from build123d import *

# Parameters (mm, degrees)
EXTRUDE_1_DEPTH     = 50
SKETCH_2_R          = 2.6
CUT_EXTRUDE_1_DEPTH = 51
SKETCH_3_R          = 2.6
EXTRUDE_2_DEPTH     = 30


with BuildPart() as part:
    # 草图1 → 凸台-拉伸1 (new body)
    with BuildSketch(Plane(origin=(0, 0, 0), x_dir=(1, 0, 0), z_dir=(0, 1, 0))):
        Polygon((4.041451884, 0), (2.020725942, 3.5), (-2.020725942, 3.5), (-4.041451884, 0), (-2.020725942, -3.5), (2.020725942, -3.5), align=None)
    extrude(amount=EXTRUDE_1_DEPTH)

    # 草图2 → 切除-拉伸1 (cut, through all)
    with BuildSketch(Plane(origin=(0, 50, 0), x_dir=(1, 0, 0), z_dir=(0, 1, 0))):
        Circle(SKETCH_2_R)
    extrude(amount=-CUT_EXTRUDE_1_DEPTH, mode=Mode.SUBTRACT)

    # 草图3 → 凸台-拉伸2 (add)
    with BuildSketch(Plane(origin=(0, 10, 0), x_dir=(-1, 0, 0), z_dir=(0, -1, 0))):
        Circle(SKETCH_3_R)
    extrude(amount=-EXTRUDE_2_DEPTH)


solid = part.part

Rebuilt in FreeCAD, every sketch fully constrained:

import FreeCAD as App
import Part
import Sketcher
from FreeCAD import Vector
Q = App.Units.Quantity


def add_polygon(sketch, points):
    """Adds a closed chain of lines whose ends are joined by coincident constraints."""
    first, n = sketch.GeometryCount, len(points)
    for a, b in zip(points, points[1:] + points[:1]):
        sketch.addGeometry(Part.LineSegment(App.Vector(*a, 0), App.Vector(*b, 0)), False)
    for i in range(n):
        sketch.addConstraint(Sketcher.Constraint("Coincident", first + i, 2, first + (i + 1) % n, 1))

doc = App.newDocument("Part")
body = doc.addObject("PartDesign::Body", "Body")

sketch1 = body.newObject("Sketcher::SketchObject", "Sketch")
sketch1.AttachmentSupport = (doc.getObject("XZ_Plane"), [""])
sketch1.MapMode = "FlatFace"
add_polygon(sketch1, [(4.041452, 0), (2.020726, -3.5), (-2.020726, -3.5), (-4.041452, 0), (-2.020726, 3.5), (2.020726, 3.5)])
sketch1.addConstraint([
    Sketcher.Constraint("Horizontal", 1),
    Sketcher.Constraint("Horizontal", 4),
    Sketcher.Constraint("Symmetric", 0, 2, 3, 2, -1, 1),
    Sketcher.Constraint("Symmetric", 2, 2, 5, 2, -1, 1),
    Sketcher.Constraint("PointOnObject", 2, 2, -1),
    Sketcher.Constraint("Parallel", 2, 5),
    Sketcher.Constraint("Vertical", 1, 2, 3, 2),
    Sketcher.Constraint("Angle", 0, Q("-120 deg")),
    Sketcher.Constraint("DistanceY", 1, 2, 3, 2, 7.0),
    Sketcher.Constraint("DistanceX", 1, 2, 1, 1, 4.041452),
])
pad1 = body.newObject("PartDesign::Pad", "Pad")
pad1.Profile = sketch1
pad1.Length = 50
pad1.Reversed = True

sketch2 = body.newObject("Sketcher::SketchObject", "Sketch001")
sketch2.AttachmentSupport = (doc.getObject("XZ_Plane"), [""])
sketch2.MapMode = "FlatFace"
sketch2.AttachmentOffset = App.Placement(Vector(0, 0, -50), App.Rotation())
sketch2.addGeometry(Part.Circle(Vector(0, 0, 0), Vector(0, 0, 1), 2.6), False)
sketch2.addConstraint([
    Sketcher.Constraint("Coincident", 0, 3, -1, 1),
    Sketcher.Constraint("Diameter", 0, 5.2),
])
pocket1 = body.newObject("PartDesign::Pocket", "Pocket")
pocket1.Profile = sketch2
pocket1.Type = "ThroughAll"
pocket1.Reversed = True

sketch3 = body.newObject("Sketcher::SketchObject", "Sketch002")
sketch3.AttachmentSupport = (doc.getObject("XZ_Plane"), [""])
sketch3.MapMode = "FlatFace"
sketch3.AttachmentOffset = App.Placement(Vector(0, 0, -10), App.Rotation())
sketch3.addGeometry(Part.Circle(Vector(0, 0, 0), Vector(0, 0, 1), 2.6), False)
sketch3.addConstraint([
    Sketcher.Constraint("Coincident", 0, 3, -1, 1),
    Sketcher.Constraint("Diameter", 0, 5.2),
])
pad2 = body.newObject("PartDesign::Pad", "Pad001")
pad2.Profile = sketch3
pad2.Length = 30
pad2.Reversed = True

doc.recompute()
